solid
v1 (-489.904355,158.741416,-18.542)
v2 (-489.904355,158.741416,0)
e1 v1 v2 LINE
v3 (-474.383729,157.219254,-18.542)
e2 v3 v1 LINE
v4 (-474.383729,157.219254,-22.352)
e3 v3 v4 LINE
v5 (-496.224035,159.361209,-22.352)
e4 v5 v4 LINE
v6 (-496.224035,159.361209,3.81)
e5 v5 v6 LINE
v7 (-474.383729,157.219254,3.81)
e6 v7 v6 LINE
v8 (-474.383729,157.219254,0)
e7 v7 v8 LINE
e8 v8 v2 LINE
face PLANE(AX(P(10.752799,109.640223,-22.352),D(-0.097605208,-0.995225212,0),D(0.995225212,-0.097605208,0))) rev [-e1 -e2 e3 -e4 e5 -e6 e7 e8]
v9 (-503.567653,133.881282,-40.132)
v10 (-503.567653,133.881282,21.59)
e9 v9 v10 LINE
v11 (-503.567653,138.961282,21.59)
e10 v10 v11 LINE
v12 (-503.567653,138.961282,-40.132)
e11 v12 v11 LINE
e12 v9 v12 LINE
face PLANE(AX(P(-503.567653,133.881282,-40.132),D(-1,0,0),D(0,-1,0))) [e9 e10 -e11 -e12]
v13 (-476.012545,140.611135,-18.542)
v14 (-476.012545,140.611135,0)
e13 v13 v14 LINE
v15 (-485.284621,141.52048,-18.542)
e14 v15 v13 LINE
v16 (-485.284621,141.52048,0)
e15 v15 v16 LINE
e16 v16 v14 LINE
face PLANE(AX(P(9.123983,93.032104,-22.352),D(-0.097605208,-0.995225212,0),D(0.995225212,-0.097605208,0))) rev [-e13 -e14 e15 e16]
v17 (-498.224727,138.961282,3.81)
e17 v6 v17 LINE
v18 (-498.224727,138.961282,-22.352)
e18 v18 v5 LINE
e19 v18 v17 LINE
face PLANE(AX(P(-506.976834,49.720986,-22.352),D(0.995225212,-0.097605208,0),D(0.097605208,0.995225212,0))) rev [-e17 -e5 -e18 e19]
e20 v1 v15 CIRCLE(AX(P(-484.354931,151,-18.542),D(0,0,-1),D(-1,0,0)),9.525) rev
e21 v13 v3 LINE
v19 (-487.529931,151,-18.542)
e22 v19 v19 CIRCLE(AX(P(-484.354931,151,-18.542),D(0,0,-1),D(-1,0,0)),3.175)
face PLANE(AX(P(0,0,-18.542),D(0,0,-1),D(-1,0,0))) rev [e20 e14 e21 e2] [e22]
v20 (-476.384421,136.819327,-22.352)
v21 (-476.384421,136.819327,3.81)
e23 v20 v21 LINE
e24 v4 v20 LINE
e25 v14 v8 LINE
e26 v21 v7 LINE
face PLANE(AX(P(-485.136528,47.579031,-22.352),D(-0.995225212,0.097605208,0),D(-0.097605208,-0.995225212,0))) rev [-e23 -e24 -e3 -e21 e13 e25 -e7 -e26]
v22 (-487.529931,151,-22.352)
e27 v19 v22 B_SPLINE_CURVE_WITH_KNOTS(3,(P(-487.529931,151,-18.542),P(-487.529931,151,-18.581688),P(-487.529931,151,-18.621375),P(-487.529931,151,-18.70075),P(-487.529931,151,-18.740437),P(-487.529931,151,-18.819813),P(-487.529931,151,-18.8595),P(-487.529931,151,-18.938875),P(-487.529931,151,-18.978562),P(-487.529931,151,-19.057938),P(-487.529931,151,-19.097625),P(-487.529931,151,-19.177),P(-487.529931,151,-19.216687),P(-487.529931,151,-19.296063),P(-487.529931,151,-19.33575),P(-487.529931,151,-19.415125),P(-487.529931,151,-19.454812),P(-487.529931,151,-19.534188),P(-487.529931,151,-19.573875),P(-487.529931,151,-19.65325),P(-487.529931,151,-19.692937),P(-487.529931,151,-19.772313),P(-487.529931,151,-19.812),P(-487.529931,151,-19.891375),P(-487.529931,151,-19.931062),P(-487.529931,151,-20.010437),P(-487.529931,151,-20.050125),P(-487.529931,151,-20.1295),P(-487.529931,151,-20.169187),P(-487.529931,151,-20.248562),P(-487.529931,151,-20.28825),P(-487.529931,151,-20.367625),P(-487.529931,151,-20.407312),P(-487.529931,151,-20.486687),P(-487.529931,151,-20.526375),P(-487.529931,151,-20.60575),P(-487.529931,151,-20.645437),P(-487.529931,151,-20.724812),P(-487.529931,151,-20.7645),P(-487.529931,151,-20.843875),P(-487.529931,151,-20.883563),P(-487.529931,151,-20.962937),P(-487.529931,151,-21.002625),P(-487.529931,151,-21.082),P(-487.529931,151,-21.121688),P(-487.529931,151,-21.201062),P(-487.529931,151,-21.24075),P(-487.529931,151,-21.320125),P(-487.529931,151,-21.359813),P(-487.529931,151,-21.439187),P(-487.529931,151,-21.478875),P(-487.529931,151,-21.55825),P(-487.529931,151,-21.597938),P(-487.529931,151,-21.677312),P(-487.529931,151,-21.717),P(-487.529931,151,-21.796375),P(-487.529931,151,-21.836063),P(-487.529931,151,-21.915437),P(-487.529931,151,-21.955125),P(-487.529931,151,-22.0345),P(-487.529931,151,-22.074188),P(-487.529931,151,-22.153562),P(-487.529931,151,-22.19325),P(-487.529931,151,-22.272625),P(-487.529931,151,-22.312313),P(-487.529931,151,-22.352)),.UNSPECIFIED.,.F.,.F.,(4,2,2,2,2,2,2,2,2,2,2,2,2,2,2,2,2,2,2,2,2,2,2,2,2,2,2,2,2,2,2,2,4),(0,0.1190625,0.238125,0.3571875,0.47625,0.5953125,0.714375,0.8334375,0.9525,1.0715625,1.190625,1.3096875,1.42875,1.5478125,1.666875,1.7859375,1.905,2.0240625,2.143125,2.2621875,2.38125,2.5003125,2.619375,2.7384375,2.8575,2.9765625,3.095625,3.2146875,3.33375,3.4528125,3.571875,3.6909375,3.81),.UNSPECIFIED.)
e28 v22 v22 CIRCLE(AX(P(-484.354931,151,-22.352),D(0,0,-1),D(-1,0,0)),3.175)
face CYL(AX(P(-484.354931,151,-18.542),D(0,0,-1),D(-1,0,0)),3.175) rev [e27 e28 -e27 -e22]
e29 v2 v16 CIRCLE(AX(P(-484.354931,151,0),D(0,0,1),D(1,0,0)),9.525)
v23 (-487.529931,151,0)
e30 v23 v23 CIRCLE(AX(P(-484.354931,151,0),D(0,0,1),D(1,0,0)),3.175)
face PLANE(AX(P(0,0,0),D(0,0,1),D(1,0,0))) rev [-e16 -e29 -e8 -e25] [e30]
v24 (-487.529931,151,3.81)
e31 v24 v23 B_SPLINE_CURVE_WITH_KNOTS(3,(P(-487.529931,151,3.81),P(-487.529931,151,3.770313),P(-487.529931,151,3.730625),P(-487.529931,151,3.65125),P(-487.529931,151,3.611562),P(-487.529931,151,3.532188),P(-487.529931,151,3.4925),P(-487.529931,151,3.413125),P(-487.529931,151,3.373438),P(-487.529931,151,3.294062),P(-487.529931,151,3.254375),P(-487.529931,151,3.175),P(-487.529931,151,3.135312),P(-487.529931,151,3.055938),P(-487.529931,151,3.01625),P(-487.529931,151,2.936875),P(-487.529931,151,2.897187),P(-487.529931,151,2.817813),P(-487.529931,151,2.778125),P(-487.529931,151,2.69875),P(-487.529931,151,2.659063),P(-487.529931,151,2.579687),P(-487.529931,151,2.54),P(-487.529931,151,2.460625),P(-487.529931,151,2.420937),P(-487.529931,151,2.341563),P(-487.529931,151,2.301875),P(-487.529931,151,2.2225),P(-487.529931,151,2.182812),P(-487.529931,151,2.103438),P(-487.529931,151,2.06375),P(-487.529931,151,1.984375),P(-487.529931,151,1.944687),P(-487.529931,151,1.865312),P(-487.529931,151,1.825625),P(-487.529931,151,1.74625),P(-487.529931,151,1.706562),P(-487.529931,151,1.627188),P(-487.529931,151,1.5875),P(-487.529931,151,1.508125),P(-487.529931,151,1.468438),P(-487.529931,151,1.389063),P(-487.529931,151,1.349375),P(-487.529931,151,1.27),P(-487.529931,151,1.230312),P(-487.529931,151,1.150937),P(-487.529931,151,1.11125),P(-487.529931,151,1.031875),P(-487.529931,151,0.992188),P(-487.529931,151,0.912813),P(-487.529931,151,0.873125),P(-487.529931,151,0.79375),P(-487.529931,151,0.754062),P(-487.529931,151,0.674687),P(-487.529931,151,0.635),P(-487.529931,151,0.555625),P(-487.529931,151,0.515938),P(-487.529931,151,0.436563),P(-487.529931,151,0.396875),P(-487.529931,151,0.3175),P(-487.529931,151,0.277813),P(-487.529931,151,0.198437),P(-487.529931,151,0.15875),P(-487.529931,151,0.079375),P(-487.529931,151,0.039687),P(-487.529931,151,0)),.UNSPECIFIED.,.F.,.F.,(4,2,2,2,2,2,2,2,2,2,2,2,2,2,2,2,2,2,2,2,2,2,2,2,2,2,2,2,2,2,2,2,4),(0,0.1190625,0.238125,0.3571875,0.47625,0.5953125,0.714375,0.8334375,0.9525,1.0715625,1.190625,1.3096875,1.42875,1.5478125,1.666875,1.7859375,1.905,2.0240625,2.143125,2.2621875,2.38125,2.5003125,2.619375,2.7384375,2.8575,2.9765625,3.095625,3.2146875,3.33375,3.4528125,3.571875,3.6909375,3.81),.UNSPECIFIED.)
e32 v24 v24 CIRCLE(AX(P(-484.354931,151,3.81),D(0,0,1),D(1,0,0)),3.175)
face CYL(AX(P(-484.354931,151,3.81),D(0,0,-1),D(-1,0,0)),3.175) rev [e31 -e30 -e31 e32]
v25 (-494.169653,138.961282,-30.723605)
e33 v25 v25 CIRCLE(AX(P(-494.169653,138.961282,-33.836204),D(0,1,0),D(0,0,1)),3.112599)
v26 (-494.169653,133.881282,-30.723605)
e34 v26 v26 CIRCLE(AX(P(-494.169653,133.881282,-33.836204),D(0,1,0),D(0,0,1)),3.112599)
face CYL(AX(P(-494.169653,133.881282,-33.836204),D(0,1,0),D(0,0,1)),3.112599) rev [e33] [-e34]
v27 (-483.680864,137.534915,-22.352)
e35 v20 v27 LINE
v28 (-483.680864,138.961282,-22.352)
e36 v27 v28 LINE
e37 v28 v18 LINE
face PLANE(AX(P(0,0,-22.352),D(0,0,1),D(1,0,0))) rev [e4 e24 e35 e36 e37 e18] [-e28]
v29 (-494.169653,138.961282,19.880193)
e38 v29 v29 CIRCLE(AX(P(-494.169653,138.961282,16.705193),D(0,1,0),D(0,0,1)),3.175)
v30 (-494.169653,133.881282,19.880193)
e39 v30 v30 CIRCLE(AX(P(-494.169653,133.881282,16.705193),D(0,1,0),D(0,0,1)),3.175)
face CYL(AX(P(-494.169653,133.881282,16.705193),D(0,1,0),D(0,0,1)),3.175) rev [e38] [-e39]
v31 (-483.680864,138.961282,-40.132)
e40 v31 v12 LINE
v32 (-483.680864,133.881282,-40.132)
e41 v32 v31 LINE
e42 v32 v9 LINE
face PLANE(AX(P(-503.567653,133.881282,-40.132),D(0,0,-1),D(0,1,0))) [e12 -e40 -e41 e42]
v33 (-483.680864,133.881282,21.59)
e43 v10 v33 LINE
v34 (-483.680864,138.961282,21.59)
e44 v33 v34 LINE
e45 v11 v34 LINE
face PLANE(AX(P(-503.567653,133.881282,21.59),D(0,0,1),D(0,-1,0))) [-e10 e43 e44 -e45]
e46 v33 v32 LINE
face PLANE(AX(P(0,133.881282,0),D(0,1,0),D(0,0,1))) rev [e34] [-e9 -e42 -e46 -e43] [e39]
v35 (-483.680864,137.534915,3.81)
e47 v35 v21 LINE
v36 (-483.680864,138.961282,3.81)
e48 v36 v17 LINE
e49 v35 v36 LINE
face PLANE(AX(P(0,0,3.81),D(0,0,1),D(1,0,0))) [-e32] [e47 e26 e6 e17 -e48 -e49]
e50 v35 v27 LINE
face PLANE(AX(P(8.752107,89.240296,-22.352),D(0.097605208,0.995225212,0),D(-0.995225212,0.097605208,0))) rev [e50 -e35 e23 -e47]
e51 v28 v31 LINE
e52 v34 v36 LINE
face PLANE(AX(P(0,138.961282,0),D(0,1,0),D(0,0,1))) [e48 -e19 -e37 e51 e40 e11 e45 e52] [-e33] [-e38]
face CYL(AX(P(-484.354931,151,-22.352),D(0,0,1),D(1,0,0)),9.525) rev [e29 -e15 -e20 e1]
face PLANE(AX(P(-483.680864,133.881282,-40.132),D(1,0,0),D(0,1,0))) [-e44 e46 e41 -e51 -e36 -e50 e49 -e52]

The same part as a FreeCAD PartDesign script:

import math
import FreeCAD as App
import Part
import Sketcher
from FreeCAD import Vector
Q = App.Units.Quantity


def add_polygon(sketch, points):
    """Adds a closed chain of lines whose ends are joined by coincident constraints."""
    first, n = sketch.GeometryCount, len(points)
    for a, b in zip(points, points[1:] + points[:1]):
        sketch.addGeometry(Part.LineSegment(App.Vector(*a, 0), App.Vector(*b, 0)), False)
    for i in range(n):
        sketch.addConstraint(Sketcher.Constraint("Coincident", first + i, 2, first + (i + 1) % n, 1))

doc = App.newDocument("Part")
params = doc.addObject("Spreadsheet::Sheet", "Params")
for row, (alias, value) in enumerate([
    ("sketch1_radius", "0.375 in"),
    ("sketch1_length", "0.15 in"),
    ("sketch1_length2", "0.25 in"),
    ("sketch1_length3", "0.807 in"),
    ("pad1_length", "0.88 in"),
    ("sketch2_diameter", "0.25 in"),
    ("sketch2_radius", "0.375 in"),
    ("sketch2_length", "0.657 in"),
    ("pad2_length", "0.15 in"),
    ("sketch3_diameter", "0.25 in"),
    ("sketch3_length", "0.25 in"),
    ("sketch3_length2", "0.15 in"),
    ("sketch3_length3", "0.807 in"),
    ("pad3_length", "0.15 in"),
    ("sketch4_height", "2.43 in"),
    ("pad4_length", "0.2 in"),
    ("sketch5_diameter", "0.25 in"),
    ("pocket1_length", "0.2 in"),
], start=1):
    params.set(f"A{row}", alias)
    params.set(f"B{row}", "=" + value)
    params.setAlias(f"B{row}", alias)

body = doc.addObject("PartDesign::Body", "Body")

# Sketch on XY plane
sketch1 = body.newObject("Sketcher::SketchObject", "Sketch")
sketch1.AttachmentSupport = (doc.getObject("XY_Plane"), [""])
sketch1.MapMode = "FlatFace"
sketch1.addGeometry([
    Part.LineSegment(Vector(-476.384421, 136.819327, 0), Vector(-476.012545, 140.611135, 0)),  # 0
    Part.LineSegment(Vector(-476.012545, 140.611135, 0), Vector(-485.284621, 141.52048, 0)),  # 1
    Part.ArcOfCircle(Part.Circle(Vector(-484.354931, 151, 0), Vector(0, 0, 1), 9.525), math.radians(-136.837362), math.radians(-95.601284)),  # 2
    Part.ArcOfCircle(Part.Circle(Vector(-484.354931, 151, 0), Vector(0, 0, 1), 9.525), math.radians(125.634793), math.radians(223.162638)),  # 3
    Part.LineSegment(Vector(-489.904355, 158.741416, 0), Vector(-496.224035, 159.361209, 0)),  # 4
    Part.LineSegment(Vector(-496.224035, 159.361209, 0), Vector(-498.224727, 138.961282, 0)),  # 5
    Part.LineSegment(Vector(-498.224727, 138.961282, 0), Vector(-476.384421, 136.819327, 0)),  # 6
], False)
sketch1.addConstraint([
    Sketcher.Constraint("Coincident", 0, 2, 1, 1),
    Sketcher.Constraint("Tangent", 1, 2, 2, 2),
    Sketcher.Constraint("Tangent", 2, 1, 3, 2),
    Sketcher.Constraint("Coincident", 3, 1, 4, 1),
    Sketcher.Constraint("Coincident", 4, 2, 5, 1),
    Sketcher.Constraint("Coincident", 5, 2, 6, 1),
    Sketcher.Constraint("Coincident", 6, 2, 0, 1),
    Sketcher.Constraint("Equal", 2, 3),
    Sketcher.Constraint("Perpendicular", 0, 1),
    Sketcher.Constraint("Parallel", 1, 4),
    Sketcher.Constraint("Perpendicular", 4, 5),
    Sketcher.Constraint("Perpendicular", 5, 6),
    Sketcher.Constraint("Radius", 2, Q("0.375 in")),
    Sketcher.Constraint("Distance", 0, Q("0.15 in")),
    Sketcher.Constraint("Distance", 4, Q("0.25 in")),
    Sketcher.Constraint("Distance", 5, Q("0.807 in")),
    Sketcher.Constraint("DistanceY", -1, 1, 2, 3, Q("151 mm")),
    Sketcher.Constraint("DistanceY", 2, 1, 3, 1, Q("14.257198 mm")),
    Sketcher.Constraint("DistanceX", 1, 2, 6, 2, Q("8.9002 mm")),
    Sketcher.Constraint("Distance", 1, Q("9.31656 mm")),
    Sketcher.Constraint("DistanceX", 2, 3, -1, 1, Q("484.354931 mm")),
])
sketch1.setExpression("Constraints[12]", "Params.sketch1_radius")
sketch1.setExpression("Constraints[13]", "Params.sketch1_length")
sketch1.setExpression("Constraints[14]", "Params.sketch1_length2")
sketch1.setExpression("Constraints[15]", "Params.sketch1_length3")
pad1 = body.newObject("PartDesign::Pad", "Pad")
pad1.Profile = sketch1
pad1.setExpression("Length", "Params.pad1_length")
pad1.Reversed = True

# Sketch on XY plane
sketch2 = body.newObject("Sketcher::SketchObject", "Sketch001")
sketch2.AttachmentSupport = (doc.getObject("XY_Plane"), [""])
sketch2.MapMode = "FlatFace"
sketch2.AttachmentOffset = App.Placement(Vector(0, 0, -0.73 * 25.4), App.Rotation())
sketch2.addGeometry([
    Part.LineSegment(Vector(-489.904355, 158.741416, 0), Vector(-474.383729, 157.219254, 0)),  # 0
    Part.LineSegment(Vector(-474.383729, 157.219254, 0), Vector(-476.012545, 140.611135, 0)),  # 1
    Part.LineSegment(Vector(-476.012545, 140.611135, 0), Vector(-485.284621, 141.52048, 0)),  # 2
    Part.ArcOfCircle(Part.Circle(Vector(-484.354931, 151, 0), Vector(0, 0, 1), 9.525), math.radians(125.634793), math.radians(264.398716)),  # 3
    Part.Circle(Vector(-484.354931, 151, 0), Vector(0, 0, 1), 3.175),  # 4
], False)
sketch2.addConstraint([
    Sketcher.Constraint("Coincident", 0, 2, 1, 1),
    Sketcher.Constraint("Coincident", 1, 2, 2, 1),
    Sketcher.Constraint("Tangent", 2, 2, 3, 2),
    Sketcher.Constraint("Coincident", 3, 1, 0, 1),
    Sketcher.Constraint("Coincident", 4, 3, 3, 3),
    Sketcher.Constraint("Perpendicular", 0, 1),
    Sketcher.Constraint("Perpendicular", 1, 2),
    Sketcher.Constraint("Diameter", 4, Q("0.25 in")),
    Sketcher.Constraint("Radius", 3, Q("0.375 in")),
    Sketcher.Constraint("Distance", 1, Q("0.657 in")),
    Sketcher.Constraint("DistanceY", -1, 1, 3, 3, Q("151 mm")),
    Sketcher.Constraint("Distance", 0, Q("15.595089 mm")),
    Sketcher.Constraint("DistanceX", 3, 3, -1, 1, Q("484.354931 mm")),
    Sketcher.Constraint("DistanceX", 0, 2, -1, 1, Q("474.383729 mm")),
])
sketch2.setExpression("Constraints[7]", "Params.sketch2_diameter")
sketch2.setExpression("Constraints[8]", "Params.sketch2_radius")
sketch2.setExpression("Constraints[9]", "Params.sketch2_length")
pad2 = body.newObject("PartDesign::Pad", "Pad001")
pad2.Profile = sketch2
pad2.setExpression("Length", "Params.pad2_length")
pad2.Reversed = True

# Sketch on XY plane
sketch3 = body.newObject("Sketcher::SketchObject", "Sketch002")
sketch3.AttachmentSupport = (doc.getObject("XY_Plane"), [""])
sketch3.MapMode = "FlatFace"
sketch3.AttachmentOffset = App.Placement(Vector(0, 0, 0.15 * 25.4), App.Rotation())
add_polygon(sketch3, [(-474.383729, 157.219254), (-489.904355, 158.741416), (-496.224035, 159.361209), (-498.224727, 138.961282), (-476.384421, 136.819327), (-476.012545, 140.611135)])  # lines 0-5
sketch3.addGeometry(Part.Circle(Vector(-484.354931, 151, 0), Vector(0, 0, 1), 3.175), False)  # 6
sketch3.addConstraint([
    Sketcher.Constraint("Parallel", 0, 1),
    Sketcher.Constraint("Perpendicular", 1, 2),
    Sketcher.Constraint("Perpendicular", 2, 3),
    Sketcher.Constraint("Perpendicular", 3, 4),
    Sketcher.Constraint("Parallel", 4, 5),
    Sketcher.Constraint("Diameter", 6, Q("0.25 in")),
    Sketcher.Constraint("Distance", 1, Q("0.25 in")),
    Sketcher.Constraint("Distance", 4, Q("0.15 in")),
    Sketcher.Constraint("Distance", 2, Q("0.807 in")),
    Sketcher.Constraint("DistanceY", -1, 1, 6, 3, Q("151 mm")),
    Sketcher.Constraint("Distance", 0, Q("15.595089 mm")),
    Sketcher.Constraint("DistanceX", 6, 3, -1, 1, Q("484.354931 mm")),
    Sketcher.Constraint("DistanceY", -1, 1, 1, 2, Q("159.361209 mm")),
    Sketcher.Constraint("DistanceY", -1, 1, 2, 2, Q("138.961282 mm")),
    Sketcher.Constraint("DistanceX", 3, 2, -1, 1, Q("476.384421 mm")),
])
sketch3.setExpression("Constraints[11]", "Params.sketch3_diameter")
sketch3.setExpression("Constraints[12]", "Params.sketch3_length")
sketch3.setExpression("Constraints[13]", "Params.sketch3_length2")
sketch3.setExpression("Constraints[14]", "Params.sketch3_length3")
pad3 = body.newObject("PartDesign::Pad", "Pad002")
pad3.Profile = sketch3
pad3.setExpression("Length", "Params.pad3_length")
pad3.Reversed = True

# Sketch on XZ plane
sketch4 = body.newObject("Sketcher::SketchObject", "Sketch003")
sketch4.AttachmentSupport = (doc.getObject("XZ_Plane"), [""])
sketch4.MapMode = "FlatFace"
sketch4.AttachmentOffset = App.Placement(Vector(0, 0, -138.961282), App.Rotation())
add_polygon(sketch4, [(-503.567653, -40.132), (-503.567653, 21.59), (-483.680864, 21.59), (-483.680864, -40.132)])  # lines 0-3
sketch4.addConstraint([
    Sketcher.Constraint("Vertical", 0),
    Sketcher.Constraint("Horizontal", 1),
    Sketcher.Constraint("Vertical", 2),
    Sketcher.Constraint("Horizontal", 3),
    Sketcher.Constraint("DistanceY", 0, 1, 0, 2, Q("2.43 in")),
    Sketcher.Constraint("DistanceY", -1, 1, 0, 2, Q("0.85 in")),
    Sketcher.Constraint("DistanceX", 1, 1, 1, 2, Q("19.886789 mm")),
    Sketcher.Constraint("DistanceX", 0, 2, -1, 1, Q("503.567653 mm")),
])
sketch4.setExpression("Constraints[8]", "Params.sketch4_height")
pad4 = body.newObject("PartDesign::Pad", "Pad003")
pad4.Profile = sketch4
pad4.setExpression("Length", "Params.pad4_length")

# Sketch on XZ plane
sketch5 = body.newObject("Sketcher::SketchObject", "Sketch004")
sketch5.AttachmentSupport = (doc.getObject("XZ_Plane"), [""])
sketch5.MapMode = "FlatFace"
sketch5.AttachmentOffset = App.Placement(Vector(0, 0, -138.961282), App.Rotation())
sketch5.addGeometry([
    Part.Circle(Vector(-494.169653, 16.705193, 0), Vector(0, 0, 1), 3.175),
    Part.Circle(Vector(-494.169653, -33.836204, 0), Vector(0, 0, 1), 3.112599),
], False)
sketch5.addConstraint([
    Sketcher.Constraint("Vertical", 0, 3, 1, 3),
    Sketcher.Constraint("Diameter", 0, Q("0.25 in")),
    Sketcher.Constraint("Diameter", 1, Q("6.225198 mm")),
    Sketcher.Constraint("DistanceX", 0, 3, -1, 1, Q("494.169653 mm")),
    Sketcher.Constraint("DistanceY", -1, 1, 0, 3, Q("16.705193 mm")),
    Sketcher.Constraint("DistanceY", 1, 3, -1, 1, Q("33.836204 mm")),
])
sketch5.setExpression("Constraints[1]", "Params.sketch5_diameter")
pocket1 = body.newObject("PartDesign::Pocket", "Pocket")
pocket1.Profile = sketch5
pocket1.setExpression("Length", "Params.pocket1_length")
pocket1.Reversed = True

doc.recompute()
